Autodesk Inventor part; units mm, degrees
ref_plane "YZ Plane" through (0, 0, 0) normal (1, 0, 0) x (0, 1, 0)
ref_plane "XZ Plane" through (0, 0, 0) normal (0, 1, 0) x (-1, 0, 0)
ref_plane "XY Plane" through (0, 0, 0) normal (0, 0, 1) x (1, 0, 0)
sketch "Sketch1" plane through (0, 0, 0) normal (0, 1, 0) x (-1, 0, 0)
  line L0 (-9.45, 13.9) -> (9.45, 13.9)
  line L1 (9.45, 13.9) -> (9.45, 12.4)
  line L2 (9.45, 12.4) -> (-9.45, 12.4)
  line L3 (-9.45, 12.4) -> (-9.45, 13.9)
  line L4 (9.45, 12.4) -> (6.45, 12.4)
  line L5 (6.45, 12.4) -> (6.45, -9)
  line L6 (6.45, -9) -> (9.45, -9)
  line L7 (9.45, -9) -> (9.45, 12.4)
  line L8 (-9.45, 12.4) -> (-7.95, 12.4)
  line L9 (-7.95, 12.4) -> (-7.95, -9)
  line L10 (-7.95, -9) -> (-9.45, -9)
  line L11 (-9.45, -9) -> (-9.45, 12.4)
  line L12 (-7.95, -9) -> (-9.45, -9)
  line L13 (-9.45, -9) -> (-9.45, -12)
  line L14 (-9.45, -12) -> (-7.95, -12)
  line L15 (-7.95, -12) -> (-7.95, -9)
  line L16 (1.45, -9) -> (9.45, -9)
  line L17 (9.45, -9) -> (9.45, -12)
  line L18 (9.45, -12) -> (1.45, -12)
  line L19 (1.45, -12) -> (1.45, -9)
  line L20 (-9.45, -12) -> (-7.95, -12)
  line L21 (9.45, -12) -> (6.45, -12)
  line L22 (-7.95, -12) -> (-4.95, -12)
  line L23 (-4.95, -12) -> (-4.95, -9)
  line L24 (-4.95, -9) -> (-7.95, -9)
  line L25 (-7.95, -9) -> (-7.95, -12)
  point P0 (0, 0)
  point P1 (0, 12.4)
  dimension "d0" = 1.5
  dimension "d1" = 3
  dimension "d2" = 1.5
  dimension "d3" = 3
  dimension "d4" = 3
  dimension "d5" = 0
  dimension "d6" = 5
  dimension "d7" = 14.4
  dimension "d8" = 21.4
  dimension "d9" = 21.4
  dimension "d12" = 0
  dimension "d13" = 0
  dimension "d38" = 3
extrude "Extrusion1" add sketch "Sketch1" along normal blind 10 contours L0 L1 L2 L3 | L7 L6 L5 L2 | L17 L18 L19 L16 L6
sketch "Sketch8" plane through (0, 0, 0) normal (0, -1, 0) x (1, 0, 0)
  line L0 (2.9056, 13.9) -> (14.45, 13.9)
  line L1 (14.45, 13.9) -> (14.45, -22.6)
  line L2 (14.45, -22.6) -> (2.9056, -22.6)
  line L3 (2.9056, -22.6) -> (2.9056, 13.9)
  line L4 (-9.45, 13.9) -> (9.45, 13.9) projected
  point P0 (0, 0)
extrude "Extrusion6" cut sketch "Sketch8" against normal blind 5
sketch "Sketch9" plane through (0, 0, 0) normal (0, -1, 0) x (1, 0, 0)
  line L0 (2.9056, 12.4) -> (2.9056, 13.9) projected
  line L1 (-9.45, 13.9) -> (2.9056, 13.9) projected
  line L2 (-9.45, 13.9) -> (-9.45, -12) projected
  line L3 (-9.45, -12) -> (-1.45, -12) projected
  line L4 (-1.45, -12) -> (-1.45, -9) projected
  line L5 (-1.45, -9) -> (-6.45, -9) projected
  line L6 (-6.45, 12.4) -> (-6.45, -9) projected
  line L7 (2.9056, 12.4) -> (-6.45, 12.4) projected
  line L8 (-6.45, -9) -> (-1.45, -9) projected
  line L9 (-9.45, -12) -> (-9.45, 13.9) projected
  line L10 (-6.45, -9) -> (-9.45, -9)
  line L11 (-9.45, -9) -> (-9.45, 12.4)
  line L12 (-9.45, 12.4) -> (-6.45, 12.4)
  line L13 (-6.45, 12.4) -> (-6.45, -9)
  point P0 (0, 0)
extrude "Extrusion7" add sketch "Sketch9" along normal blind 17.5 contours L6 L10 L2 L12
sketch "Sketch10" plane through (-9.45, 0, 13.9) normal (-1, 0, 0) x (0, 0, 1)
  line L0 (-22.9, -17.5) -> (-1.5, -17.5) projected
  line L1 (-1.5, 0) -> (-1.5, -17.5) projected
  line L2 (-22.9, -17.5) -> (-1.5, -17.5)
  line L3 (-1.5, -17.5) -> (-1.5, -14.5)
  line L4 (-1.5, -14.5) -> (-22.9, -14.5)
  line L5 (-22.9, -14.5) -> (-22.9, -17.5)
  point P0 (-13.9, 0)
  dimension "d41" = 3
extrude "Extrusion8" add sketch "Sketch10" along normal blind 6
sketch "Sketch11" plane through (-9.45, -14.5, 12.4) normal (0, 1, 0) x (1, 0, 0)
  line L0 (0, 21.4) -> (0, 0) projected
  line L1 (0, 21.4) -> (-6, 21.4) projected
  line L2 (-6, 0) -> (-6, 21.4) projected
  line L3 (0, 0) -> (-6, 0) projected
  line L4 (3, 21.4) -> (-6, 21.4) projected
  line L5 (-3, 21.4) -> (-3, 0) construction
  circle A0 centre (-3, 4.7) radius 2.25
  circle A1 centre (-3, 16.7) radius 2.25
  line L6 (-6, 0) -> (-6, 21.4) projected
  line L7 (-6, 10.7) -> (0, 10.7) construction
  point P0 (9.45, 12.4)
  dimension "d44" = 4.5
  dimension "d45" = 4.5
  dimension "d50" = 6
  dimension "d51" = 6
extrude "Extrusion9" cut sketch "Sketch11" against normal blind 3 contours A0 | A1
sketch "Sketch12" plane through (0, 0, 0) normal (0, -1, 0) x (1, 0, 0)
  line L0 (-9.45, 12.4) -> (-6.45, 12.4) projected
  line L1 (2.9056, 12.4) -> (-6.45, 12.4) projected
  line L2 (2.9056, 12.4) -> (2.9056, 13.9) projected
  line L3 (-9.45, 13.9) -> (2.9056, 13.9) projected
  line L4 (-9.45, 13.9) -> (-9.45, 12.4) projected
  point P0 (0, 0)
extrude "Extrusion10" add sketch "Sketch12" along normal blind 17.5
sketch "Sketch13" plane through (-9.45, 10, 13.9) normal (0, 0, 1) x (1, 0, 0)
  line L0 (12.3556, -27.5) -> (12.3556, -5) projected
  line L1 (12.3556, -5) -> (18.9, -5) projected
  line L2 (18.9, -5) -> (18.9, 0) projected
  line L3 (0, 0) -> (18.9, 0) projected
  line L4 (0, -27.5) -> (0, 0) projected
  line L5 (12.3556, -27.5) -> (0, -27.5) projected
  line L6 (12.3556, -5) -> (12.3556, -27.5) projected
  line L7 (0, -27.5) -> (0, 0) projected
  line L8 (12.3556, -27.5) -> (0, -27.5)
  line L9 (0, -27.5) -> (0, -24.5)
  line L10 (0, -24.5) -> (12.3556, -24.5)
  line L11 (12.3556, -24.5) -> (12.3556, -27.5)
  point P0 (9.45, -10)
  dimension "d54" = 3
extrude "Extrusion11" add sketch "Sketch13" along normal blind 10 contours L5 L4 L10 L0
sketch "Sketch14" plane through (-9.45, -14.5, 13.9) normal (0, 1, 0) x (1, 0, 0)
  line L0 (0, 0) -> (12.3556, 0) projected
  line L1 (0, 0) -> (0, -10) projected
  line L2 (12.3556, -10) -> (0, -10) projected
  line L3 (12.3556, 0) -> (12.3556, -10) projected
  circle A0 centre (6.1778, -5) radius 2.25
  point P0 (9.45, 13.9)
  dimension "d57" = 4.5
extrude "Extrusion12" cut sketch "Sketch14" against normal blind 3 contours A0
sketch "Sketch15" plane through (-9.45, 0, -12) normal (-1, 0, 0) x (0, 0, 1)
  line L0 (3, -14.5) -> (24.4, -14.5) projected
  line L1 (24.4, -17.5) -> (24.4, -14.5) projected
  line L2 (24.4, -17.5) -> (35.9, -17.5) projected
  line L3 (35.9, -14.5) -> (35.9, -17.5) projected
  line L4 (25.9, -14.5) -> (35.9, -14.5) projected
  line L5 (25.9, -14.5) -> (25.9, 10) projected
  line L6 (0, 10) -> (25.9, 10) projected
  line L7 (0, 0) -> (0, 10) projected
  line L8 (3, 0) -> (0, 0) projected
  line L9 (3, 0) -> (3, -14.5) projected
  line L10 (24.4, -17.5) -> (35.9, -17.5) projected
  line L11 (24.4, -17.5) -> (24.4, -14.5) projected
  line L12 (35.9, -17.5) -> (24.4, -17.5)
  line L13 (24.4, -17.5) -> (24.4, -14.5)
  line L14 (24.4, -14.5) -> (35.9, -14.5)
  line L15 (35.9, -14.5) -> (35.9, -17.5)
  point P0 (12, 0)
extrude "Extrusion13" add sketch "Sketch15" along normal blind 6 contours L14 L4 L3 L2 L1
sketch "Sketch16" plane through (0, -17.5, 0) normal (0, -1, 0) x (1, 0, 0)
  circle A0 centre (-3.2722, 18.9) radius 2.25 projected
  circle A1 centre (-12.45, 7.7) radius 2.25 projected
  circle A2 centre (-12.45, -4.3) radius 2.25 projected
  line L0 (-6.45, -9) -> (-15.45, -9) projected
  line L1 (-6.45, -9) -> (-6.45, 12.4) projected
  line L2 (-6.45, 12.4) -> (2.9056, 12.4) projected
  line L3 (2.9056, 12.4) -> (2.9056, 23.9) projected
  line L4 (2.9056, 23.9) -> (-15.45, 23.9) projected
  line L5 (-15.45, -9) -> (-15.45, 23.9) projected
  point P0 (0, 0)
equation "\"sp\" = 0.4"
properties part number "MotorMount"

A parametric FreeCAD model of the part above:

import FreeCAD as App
import Part
import Sketcher

doc = App.newDocument("Part")
params = doc.addObject("Spreadsheet::Sheet", "Params")
for row, (alias, value) in enumerate([
    ("sketch1_width", "5 mm"),
    ("sketch1_height", "3 mm"),
    ("sketch1_height2", "1.5 mm"),
    ("sketch1_height3", "21.4 mm"),
    ("sketch1_width2", "18.9 mm"),
    ("pad1_length", "10 mm"),
    ("sketch2_height", "36.5 mm"),
    ("pocket1_length", "5 mm"),
    ("sketch3_width", "3 mm"),
    ("sketch3_height", "21.4 mm"),
    ("pad2_length", "17.5 mm"),
    ("sketch4_width", "3 mm"),
    ("sketch4_height", "21.4 mm"),
    ("pad3_length", "6 mm"),
    ("sketch5_diameter", "4.5 mm"),
    ("pocket2_length", "3 mm"),
    ("sketch6_height", "1.5 mm"),
    ("pad4_length", "17.5 mm"),
    ("sketch7_height", "3 mm"),
    ("pad5_length", "10 mm"),
    ("sketch8_diameter", "4.5 mm"),
    ("pocket3_length", "3 mm"),
    ("sketch9_width", "3 mm"),
    ("sketch9_height", "11.5 mm"),
    ("pad6_length", "6 mm"),
], start=1):
    params.set(f"A{row}", alias)
    params.set(f"B{row}", "=" + value)
    params.setAlias(f"B{row}", alias)

body = doc.addObject("PartDesign::Body", "Body")

sketch1 = body.newObject("Sketcher::SketchObject", "Sketch")
sketch1.AttachmentSupport = (doc.getObject("XZ_Plane"), [""])
sketch1.MapMode = "FlatFace"
sketch1.addGeometry(Part.LineSegment(App.Vector(-9.45, 13.9, 0), App.Vector(9.45, 13.9, 0)), False)
sketch1.addGeometry(Part.LineSegment(App.Vector(9.45, 13.9, 0), App.Vector(9.45, 12.4, 0)), False)
sketch1.addGeometry(Part.LineSegment(App.Vector(9.45, 12.4, 0), App.Vector(-6.45, 12.4, 0)), False)
sketch1.addGeometry(Part.LineSegment(App.Vector(-6.45, 12.4, 0), App.Vector(-6.45, -9, 0)), False)
sketch1.addGeometry(Part.LineSegment(App.Vector(-6.45, -9, 0), App.Vector(-1.45, -9, 0)), False)
sketch1.addGeometry(Part.LineSegment(App.Vector(-1.45, -9, 0), App.Vector(-1.45, -12, 0)), False)
sketch1.addGeometry(Part.LineSegment(App.Vector(-1.45, -12, 0), App.Vector(-9.45, -12, 0)), False)
sketch1.addGeometry(Part.LineSegment(App.Vector(-9.45, -12, 0), App.Vector(-9.45, 13.9, 0)), False)
sketch1.addConstraint(Sketcher.Constraint("Coincident", 0, 2, 1, 1))
sketch1.addConstraint(Sketcher.Constraint("Coincident", 1, 2, 2, 1))
sketch1.addConstraint(Sketcher.Constraint("Coincident", 2, 2, 3, 1))
sketch1.addConstraint(Sketcher.Constraint("Coincident", 3, 2, 4, 1))
sketch1.addConstraint(Sketcher.Constraint("Coincident", 4, 2, 5, 1))
sketch1.addConstraint(Sketcher.Constraint("Coincident", 5, 2, 6, 1))
sketch1.addConstraint(Sketcher.Constraint("Coincident", 6, 2, 7, 1))
sketch1.addConstraint(Sketcher.Constraint("Coincident", 7, 2, 0, 1))
sketch1.addConstraint(Sketcher.Constraint("Horizontal", 0))
sketch1.addConstraint(Sketcher.Constraint("Vertical", 1))
sketch1.addConstraint(Sketcher.Constraint("Horizontal", 2))
sketch1.addConstraint(Sketcher.Constraint("Vertical", 3))
sketch1.addConstraint(Sketcher.Constraint("Horizontal", 4))
sketch1.addConstraint(Sketcher.Constraint("Vertical", 5))
sketch1.addConstraint(Sketcher.Constraint("Horizontal", 6))
sketch1.addConstraint(Sketcher.Constraint("Vertical", 7))
sketch1.addConstraint(Sketcher.Constraint("DistanceX", 4, 1, 4, 2, 5.0))
sketch1.addConstraint(Sketcher.Constraint("DistanceY", 5, 2, 5, 1, 3.0))
sketch1.addConstraint(Sketcher.Constraint("DistanceY", 1, 2, 1, 1, 1.5))
sketch1.addConstraint(Sketcher.Constraint("DistanceY", 3, 2, 3, 1, 21.4))
sketch1.addConstraint(Sketcher.Constraint("DistanceX", 6, 2, 3, 2, 3.0))
sketch1.addConstraint(Sketcher.Constraint("DistanceX", 0, 1, 0, 2, 18.9))
sketch1.addConstraint(Sketcher.Constraint("DistanceY", 3, 2, -1, 1, 9.0))
sketch1.addConstraint(Sketcher.Constraint("DistanceX", -1, 1, 0, 2, 9.45))
sketch1.setExpression("Constraints[16]", "Params.sketch1_width")
sketch1.setExpression("Constraints[17]", "Params.sketch1_height")
sketch1.setExpression("Constraints[18]", "Params.sketch1_height2")
sketch1.setExpression("Constraints[19]", "Params.sketch1_height3")
sketch1.setExpression("Constraints[21]", "Params.sketch1_width2")
pad1 = body.newObject("PartDesign::Pad", "Pad")
pad1.Profile = sketch1
pad1.setExpression("Length", "Params.pad1_length")
pad1.Reversed = True

sketch2 = body.newObject("Sketcher::SketchObject", "Sketch001")
sketch2.AttachmentSupport = (doc.getObject("XZ_Plane"), [""])
sketch2.MapMode = "FlatFace"
sketch2.addGeometry(Part.LineSegment(App.Vector(14.45, 13.9, 0), App.Vector(2.9056, 13.9, 0)), False)
sketch2.addGeometry(Part.LineSegment(App.Vector(2.9056, 13.9, 0), App.Vector(2.9056, -22.6, 0)), False)
sketch2.addGeometry(Part.LineSegment(App.Vector(2.9056, -22.6, 0), App.Vector(14.45, -22.6, 0)), False)
sketch2.addGeometry(Part.LineSegment(App.Vector(14.45, -22.6, 0), App.Vector(14.45, 13.9, 0)), False)
sketch2.addConstraint(Sketcher.Constraint("Coincident", 0, 2, 1, 1))
sketch2.addConstraint(Sketcher.Constraint("Coincident", 1, 2, 2, 1))
sketch2.addConstraint(Sketcher.Constraint("Coincident", 2, 2, 3, 1))
sketch2.addConstraint(Sketcher.Constraint("Coincident", 3, 2, 0, 1))
sketch2.addConstraint(Sketcher.Constraint("Horizontal", 0))
sketch2.addConstraint(Sketcher.Constraint("Vertical", 1))
sketch2.addConstraint(Sketcher.Constraint("Horizontal", 2))
sketch2.addConstraint(Sketcher.Constraint("Vertical", 3))
sketch2.addConstraint(Sketcher.Constraint("DistanceY", 1, 2, 1, 1, 36.5))
sketch2.addConstraint(Sketcher.Constraint("DistanceY", -1, 1, 0, 2, 13.9))
sketch2.addConstraint(Sketcher.Constraint("DistanceX", -1, 1, 2, 2, 14.45))
sketch2.addConstraint(Sketcher.Constraint("DistanceX", 0, 2, 0, 1, 11.5444))
sketch2.setExpression("Constraints[8]", "Params.sketch2_height")
pocket1 = body.newObject("PartDesign::Pocket", "Pocket")
pocket1.Profile = sketch2
pocket1.setExpression("Length", "Params.pocket1_length")

sketch3 = body.newObject("Sketcher::SketchObject", "Sketch002")
sketch3.AttachmentSupport = (doc.getObject("XZ_Plane"), [""])
sketch3.MapMode = "FlatFace"
sketch3.addGeometry(Part.LineSegment(App.Vector(-6.45, -9, 0), App.Vector(-6.45, 12.4, 0)), False)
sketch3.addGeometry(Part.LineSegment(App.Vector(-6.45, 12.4, 0), App.Vector(-9.45, 12.4, 0)), False)
sketch3.addGeometry(Part.LineSegment(App.Vector(-9.45, 12.4, 0), App.Vector(-9.45, -9, 0)), False)
sketch3.addGeometry(Part.LineSegment(App.Vector(-9.45, -9, 0), App.Vector(-6.45, -9, 0)), False)
sketch3.addConstraint(Sketcher.Constraint("Coincident", 0, 2, 1, 1))
sketch3.addConstraint(Sketcher.Constraint("Coincident", 1, 2, 2, 1))
sketch3.addConstraint(Sketcher.Constraint("Coincident", 2, 2, 3, 1))
sketch3.addConstraint(Sketcher.Constraint("Coincident", 3, 2, 0, 1))
sketch3.addConstraint(Sketcher.Constraint("Vertical", 0))
sketch3.addConstraint(Sketcher.Constraint("Horizontal", 1))
sketch3.addConstraint(Sketcher.Constraint("Vertical", 2))
sketch3.addConstraint(Sketcher.Constraint("Horizontal", 3))
sketch3.addConstraint(Sketcher.Constraint("DistanceX", 1, 2, 1, 1, 3.0))
sketch3.addConstraint(Sketcher.Constraint("DistanceY", 0, 1, 0, 2, 21.4))
sketch3.addConstraint(Sketcher.Constraint("DistanceY", 2, 2, -1, 1, 9.0))
sketch3.addConstraint(Sketcher.Constraint("DistanceX", 0, 2, -1, 1, 6.45))
sketch3.setExpression("Constraints[8]", "Params.sketch3_width")
sketch3.setExpression("Constraints[9]", "Params.sketch3_height")
pad2 = body.newObject("PartDesign::Pad", "Pad001")
pad2.Profile = sketch3
pad2.setExpression("Length", "Params.pad2_length")

sketch4 = body.newObject("Sketcher::SketchObject", "Sketch003")
sketch4.AttachmentSupport = (doc.getObject("YZ_Plane"), [""])
sketch4.MapMode = "FlatFace"
sketch4.AttachmentOffset = App.Placement(App.Vector(0, 0, -9.45), App.Rotation())
sketch4.addGeometry(Part.LineSegment(App.Vector(-14.5, -9, 0), App.Vector(-17.5, -9, 0)), False)
sketch4.addGeometry(Part.LineSegment(App.Vector(-17.5, -9, 0), App.Vector(-17.5, 12.4, 0)), False)
sketch4.addGeometry(Part.LineSegment(App.Vector(-17.5, 12.4, 0), App.Vector(-14.5, 12.4, 0)), False)
sketch4.addGeometry(Part.LineSegment(App.Vector(-14.5, 12.4, 0), App.Vector(-14.5, -9, 0)), False)
sketch4.addConstraint(Sketcher.Constraint("Coincident", 0, 2, 1, 1))
sketch4.addConstraint(Sketcher.Constraint("Coincident", 1, 2, 2, 1))
sketch4.addConstraint(Sketcher.Constraint("Coincident", 2, 2, 3, 1))
sketch4.addConstraint(Sketcher.Constraint("Coincident", 3, 2, 0, 1))
sketch4.addConstraint(Sketcher.Constraint("Horizontal", 0))
sketch4.addConstraint(Sketcher.Constraint("Vertical", 1))
sketch4.addConstraint(Sketcher.Constraint("Horizontal", 2))
sketch4.addConstraint(Sketcher.Constraint("Vertical", 3))
sketch4.addConstraint(Sketcher.Constraint("DistanceX", 0, 2, 0, 1, 3.0))
sketch4.addConstraint(Sketcher.Constraint("DistanceY", 1, 1, 1, 2, 21.4))
sketch4.addConstraint(Sketcher.Constraint("DistanceY", 0, 2, -1, 1, 9.0))
sketch4.addConstraint(Sketcher.Constraint("DistanceX", 0, 2, -1, 1, 17.5))
sketch4.setExpression("Constraints[8]", "Params.sketch4_width")
sketch4.setExpression("Constraints[9]", "Params.sketch4_height")
pad3 = body.newObject("PartDesign::Pad", "Pad002")
pad3.Profile = sketch4
pad3.setExpression("Length", "Params.pad3_length")
pad3.Reversed = True

sketch5 = body.newObject("Sketcher::SketchObject", "Sketch004")
sketch5.AttachmentSupport = (doc.getObject("XZ_Plane"), [""])
sketch5.MapMode = "FlatFace"
sketch5.AttachmentOffset = App.Placement(App.Vector(0, 0, 14.5), App.Rotation())
sketch5.addGeometry(Part.Circle(App.Vector(-12.45, 7.7, 0), App.Vector(0, 0, 1), 2.25), False)
sketch5.addGeometry(Part.Circle(App.Vector(-12.45, -4.3, 0), App.Vector(0, 0, 1), 2.25), False)
sketch5.addConstraint(Sketcher.Constraint("Equal", 0, 1))
sketch5.addConstraint(Sketcher.Constraint("Vertical", 0, 3, 1, 3))
sketch5.addConstraint(Sketcher.Constraint("Diameter", 0, 4.5))
sketch5.addConstraint(Sketcher.Constraint("DistanceY", 1, 3, 0, 3, 12.0))
sketch5.addConstraint(Sketcher.Constraint("DistanceY", -1, 1, 0, 3, 7.7))
sketch5.addConstraint(Sketcher.Constraint("DistanceX", 0, 3, -1, 1, 12.45))
sketch5.setExpression("Constraints[2]", "Params.sketch5_diameter")
pocket2 = body.newObject("PartDesign::Pocket", "Pocket001")
pocket2.Profile = sketch5
pocket2.setExpression("Length", "Params.pocket2_length")
pocket2.Reversed = True

sketch6 = body.newObject("Sketcher::SketchObject", "Sketch005")
sketch6.AttachmentSupport = (doc.getObject("XZ_Plane"), [""])
sketch6.MapMode = "FlatFace"
sketch6.addGeometry(Part.LineSegment(App.Vector(-9.45, 13.9, 0), App.Vector(-9.45, 12.4, 0)), False)
sketch6.addGeometry(Part.LineSegment(App.Vector(-9.45, 12.4, 0), App.Vector(2.9056, 12.4, 0)), False)
sketch6.addGeometry(Part.LineSegment(App.Vector(2.9056, 12.4, 0), App.Vector(2.9056, 13.9, 0)), False)
sketch6.addGeometry(Part.LineSegment(App.Vector(2.9056, 13.9, 0), App.Vector(-9.45, 13.9, 0)), False)
sketch6.addConstraint(Sketcher.Constraint("Coincident", 0, 2, 1, 1))
sketch6.addConstraint(Sketcher.Constraint("Coincident", 1, 2, 2, 1))
sketch6.addConstraint(Sketcher.Constraint("Coincident", 2, 2, 3, 1))
sketch6.addConstraint(Sketcher.Constraint("Coincident", 3, 2, 0, 1))
sketch6.addConstraint(Sketcher.Constraint("Vertical", 0))
sketch6.addConstraint(Sketcher.Constraint("Horizontal", 1))
sketch6.addConstraint(Sketcher.Constraint("Vertical", 2))
sketch6.addConstraint(Sketcher.Constraint("Horizontal", 3))
sketch6.addConstraint(Sketcher.Constraint("DistanceY", 0, 2, 0, 1, 1.5))
sketch6.addConstraint(Sketcher.Constraint("DistanceY", -1, 1, 0, 2, 12.4))
sketch6.addConstraint(Sketcher.Constraint("DistanceX", 0, 2, -1, 1, 9.45))
sketch6.addConstraint(Sketcher.Constraint("DistanceX", 1, 1, 1, 2, 12.3556))
sketch6.setExpression("Constraints[8]", "Params.sketch6_height")
pad4 = body.newObject("PartDesign::Pad", "Pad003")
pad4.Profile = sketch6
pad4.setExpression("Length", "Params.pad4_length")

sketch7 = body.newObject("Sketcher::SketchObject", "Sketch006")
sketch7.AttachmentSupport = (doc.getObject("XY_Plane"), [""])
sketch7.MapMode = "FlatFace"
sketch7.AttachmentOffset = App.Placement(App.Vector(0, 0, 13.9), App.Rotation())
sketch7.addGeometry(Part.LineSegment(App.Vector(-9.45, -17.5, 0), App.Vector(2.9056, -17.5, 0)), False)
sketch7.addGeometry(Part.LineSegment(App.Vector(2.9056, -17.5, 0), App.Vector(2.9056, -14.5, 0)), False)
sketch7.addGeometry(Part.LineSegment(App.Vector(2.9056, -14.5, 0), App.Vector(-9.45, -14.5, 0)), False)
sketch7.addGeometry(Part.LineSegment(App.Vector(-9.45, -14.5, 0), App.Vector(-9.45, -17.5, 0)), False)
sketch7.addConstraint(Sketcher.Constraint("Coincident", 0, 2, 1, 1))
sketch7.addConstraint(Sketcher.Constraint("Coincident", 1, 2, 2, 1))
sketch7.addConstraint(Sketcher.Constraint("Coincident", 2, 2, 3, 1))
sketch7.addConstraint(Sketcher.Constraint("Coincident", 3, 2, 0, 1))
sketch7.addConstraint(Sketcher.Constraint("Horizontal", 0))
sketch7.addConstraint(Sketcher.Constraint("Vertical", 1))
sketch7.addConstraint(Sketcher.Constraint("Horizontal", 2))
sketch7.addConstraint(Sketcher.Constraint("Vertical", 3))
sketch7.addConstraint(Sketcher.Constraint("DistanceY", 1, 1, 1, 2, 3.0))
sketch7.addConstraint(Sketcher.Constraint("DistanceY", 0, 2, -1, 1, 17.5))
sketch7.addConstraint(Sketcher.Constraint("DistanceX", 2, 2, -1, 1, 9.45))
sketch7.addConstraint(Sketcher.Constraint("DistanceX", 0, 1, 0, 2, 12.3556))
sketch7.setExpression("Constraints[8]", "Params.sketch7_height")
pad5 = body.newObject("PartDesign::Pad", "Pad004")
pad5.Profile = sketch7
pad5.setExpression("Length", "Params.pad5_length")

sketch8 = body.newObject("Sketcher::SketchObject", "Sketch007")
sketch8.AttachmentSupport = (doc.getObject("XZ_Plane"), [""])
sketch8.MapMode = "FlatFace"
sketch8.AttachmentOffset = App.Placement(App.Vector(0, 0, 14.5), App.Rotation())
sketch8.addGeometry(Part.Circle(App.Vector(-3.2722, 18.9, 0), App.Vector(0, 0, 1), 2.25), False)
sketch8.addConstraint(Sketcher.Constraint("Diameter", 0, 4.5))
sketch8.addConstraint(Sketcher.Constraint("DistanceY", -1, 1, 0, 3, 18.9))
sketch8.addConstraint(Sketcher.Constraint("DistanceX", 0, 3, -1, 1, 3.2722))
sketch8.setExpression("Constraints[0]", "Params.sketch8_diameter")
pocket3 = body.newObject("PartDesign::Pocket", "Pocket002")
pocket3.Profile = sketch8
pocket3.setExpression("Length", "Params.pocket3_length")
pocket3.Reversed = True

sketch9 = body.newObject("Sketcher::SketchObject", "Sketch008")
sketch9.AttachmentSupport = (doc.getObject("YZ_Plane"), [""])
sketch9.MapMode = "FlatFace"
sketch9.AttachmentOffset = App.Placement(App.Vector(0, 0, -9.45), App.Rotation())
sketch9.addGeometry(Part.LineSegment(App.Vector(-14.5, 23.9, 0), App.Vector(-14.5, 12.4, 0)), False)
sketch9.addGeometry(Part.LineSegment(App.Vector(-14.5, 12.4, 0), App.Vector(-17.5, 12.4, 0)), False)
sketch9.addGeometry(Part.LineSegment(App.Vector(-17.5, 12.4, 0), App.Vector(-17.5, 23.9, 0)), False)
sketch9.addGeometry(Part.LineSegment(App.Vector(-17.5, 23.9, 0), App.Vector(-14.5, 23.9, 0)), False)
sketch9.addConstraint(Sketcher.Constraint("Coincident", 0, 2, 1, 1))
sketch9.addConstraint(Sketcher.Constraint("Coincident", 1, 2, 2, 1))
sketch9.addConstraint(Sketcher.Constraint("Coincident", 2, 2, 3, 1))
sketch9.addConstraint(Sketcher.Constraint("Coincident", 3, 2, 0, 1))
sketch9.addConstraint(Sketcher.Constraint("Vertical", 0))
sketch9.addConstraint(Sketcher.Constraint("Horizontal", 1))
sketch9.addConstraint(Sketcher.Constraint("Vertical", 2))
sketch9.addConstraint(Sketcher.Constraint("Horizontal", 3))
sketch9.addConstraint(Sketcher.Constraint("DistanceX", 1, 2, 1, 1, 3.0))
sketch9.addConstraint(Sketcher.Constraint("DistanceY", 0, 2, 0, 1, 11.5))
sketch9.addConstraint(Sketcher.Constraint("DistanceX", 0, 2, -1, 1, 14.5))
sketch9.addConstraint(Sketcher.Constraint("DistanceY", -1, 1, 0, 2, 12.4))
sketch9.setExpression("Constraints[8]", "Params.sketch9_width")
sketch9.setExpression("Constraints[9]", "Params.sketch9_height")
pad6 = body.newObject("PartDesign::Pad", "Pad005")
pad6.Profile = sketch9
pad6.setExpression("Length", "Params.pad6_length")
pad6.Reversed = True

doc.recompute()
